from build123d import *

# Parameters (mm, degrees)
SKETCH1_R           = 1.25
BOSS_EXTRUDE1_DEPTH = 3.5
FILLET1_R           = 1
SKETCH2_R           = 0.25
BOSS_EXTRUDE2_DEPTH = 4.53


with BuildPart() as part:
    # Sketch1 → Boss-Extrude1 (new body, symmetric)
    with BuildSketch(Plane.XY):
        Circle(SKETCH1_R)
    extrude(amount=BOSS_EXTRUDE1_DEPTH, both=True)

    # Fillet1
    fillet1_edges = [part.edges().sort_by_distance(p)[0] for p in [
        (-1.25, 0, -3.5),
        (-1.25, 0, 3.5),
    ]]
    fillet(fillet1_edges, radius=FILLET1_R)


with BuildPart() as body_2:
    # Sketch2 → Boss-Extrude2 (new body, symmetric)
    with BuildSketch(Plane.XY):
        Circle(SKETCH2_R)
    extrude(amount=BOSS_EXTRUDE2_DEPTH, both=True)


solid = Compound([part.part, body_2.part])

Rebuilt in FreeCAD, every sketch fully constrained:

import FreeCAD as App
import Part
import Sketcher
from FreeCAD import Vector


def edges_at(feature, points):
    """Names of the edges that pass closest to the given points."""
    edges = feature.Shape.Edges
    near = lambda p: min(range(len(edges)), key=lambda i: edges[i].distToShape(Part.Vertex(*p))[0])
    return sorted({f"Edge{near(p) + 1}" for p in points})

doc = App.newDocument("Part")
body = doc.addObject("PartDesign::Body", "Body")

sketch1 = doc.addObject("Sketcher::SketchObject", "Sketch")
body.addObject(sketch1)
sketch1.AttachmentSupport = (doc.XY_Plane, [""])
sketch1.MapMode = "FlatFace"
sketch1.addGeometry(Part.Circle(Vector(0, 0, 0), Vector(0, 0, 1), 1.2), False)
sketch1.addConstraint(Sketcher.Constraint("Coincident", 0, 3, -1, 1))
sketch1.addConstraint(Sketcher.Constraint("Diameter", 0, 2.5))
pad1 = doc.addObject("PartDesign::Pad", "Pad")
body.addObject(pad1)
pad1.Profile = sketch1
pad1.Length = 7
pad1.Midplane = True
doc.recompute()

fillet = doc.addObject("PartDesign::Fillet", "Fillet")
body.addObject(fillet)
fillet.Base = (pad1, edges_at(pad1, [(-1.25, 0, -3.5), (-1.25, 0, 3.5)]))
fillet.Radius = 1
body2 = doc.addObject("PartDesign::Body", "Body001")

sketch2 = doc.addObject("Sketcher::SketchObject", "Sketch001")
body2.addObject(sketch2)
sketch2.AttachmentSupport = (doc.getObject("XY_Plane001"), [""])
sketch2.MapMode = "FlatFace"
sketch2.addGeometry(Part.Circle(Vector(0, 0, 0), Vector(0, 0, 1), 0.25), False)
sketch2.addConstraint(Sketcher.Constraint("Coincident", 0, 3, -1, 1))
sketch2.addConstraint(Sketcher.Constraint("Diameter", 0, 0.5))
pad2 = doc.addObject("PartDesign::Pad", "Pad001")
body2.addObject(pad2)
pad2.Profile = sketch2
pad2.Length = 9.06
pad2.Midplane = True

doc.recompute()
